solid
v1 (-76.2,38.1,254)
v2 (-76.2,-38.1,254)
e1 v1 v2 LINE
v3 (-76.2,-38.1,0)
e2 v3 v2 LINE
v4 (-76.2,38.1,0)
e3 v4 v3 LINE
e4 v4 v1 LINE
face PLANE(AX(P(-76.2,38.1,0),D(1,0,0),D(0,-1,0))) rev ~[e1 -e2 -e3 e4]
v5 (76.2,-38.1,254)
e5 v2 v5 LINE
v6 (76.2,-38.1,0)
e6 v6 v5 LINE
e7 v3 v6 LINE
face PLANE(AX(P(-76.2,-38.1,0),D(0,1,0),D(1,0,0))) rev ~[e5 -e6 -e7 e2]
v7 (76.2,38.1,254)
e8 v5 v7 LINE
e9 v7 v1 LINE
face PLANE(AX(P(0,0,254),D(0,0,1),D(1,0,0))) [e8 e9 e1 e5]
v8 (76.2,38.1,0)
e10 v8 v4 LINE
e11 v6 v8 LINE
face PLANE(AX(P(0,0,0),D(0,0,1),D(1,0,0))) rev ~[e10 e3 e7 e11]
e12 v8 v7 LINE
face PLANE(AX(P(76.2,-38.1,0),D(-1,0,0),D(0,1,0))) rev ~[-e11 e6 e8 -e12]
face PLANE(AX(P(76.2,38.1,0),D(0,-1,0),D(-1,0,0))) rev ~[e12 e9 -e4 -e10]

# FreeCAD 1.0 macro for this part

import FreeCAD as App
import Part
import Sketcher
from FreeCAD import Vector
Q = App.Units.Quantity

doc = App.newDocument("Part")
body = doc.addObject("PartDesign::Body", "Body")

# Sketch on XY plane
sketch1 = doc.addObject("Sketcher::SketchObject", "Sketch")
body.addObject(sketch1)
sketch1.AttachmentSupport = (doc.XY_Plane, [""])
sketch1.MapMode = "FlatFace"
sketch1.addGeometry([
    Part.LineSegment(Vector(-76, 38, 0), Vector(-76, -38, 0)),
    Part.LineSegment(Vector(-76, -38, 0), Vector(76, -38, 0)),
    Part.LineSegment(Vector(76, -38, 0), Vector(76, 38, 0)),
    Part.LineSegment(Vector(76, 38, 0), Vector(-76, 38, 0)),
], False)
sketch1.addConstraint([
    Sketcher.Constraint("Coincident", 0, 2, 1, 1),
    Sketcher.Constraint("Coincident", 1, 2, 2, 1),
    Sketcher.Constraint("Coincident", 2, 2, 3, 1),
    Sketcher.Constraint("Coincident", 3, 2, 0, 1),
    Sketcher.Constraint("Vertical", 0),
    Sketcher.Constraint("Horizontal", 1),
    Sketcher.Constraint("Vertical", 2),
    Sketcher.Constraint("Horizontal", 3),
    Sketcher.Constraint("Symmetric", 0, 2, 2, 2, -1, 1),
    Sketcher.Constraint("DistanceX", 1, 1, 1, 2, Q("6 in")),
    Sketcher.Constraint("DistanceY", 0, 2, 0, 1, Q("3 in")),
])
pad1 = doc.addObject("PartDesign::Pad", "Pad")
body.addObject(pad1)
pad1.Profile = sketch1
pad1.Length = Q("10 in")

doc.recompute()
